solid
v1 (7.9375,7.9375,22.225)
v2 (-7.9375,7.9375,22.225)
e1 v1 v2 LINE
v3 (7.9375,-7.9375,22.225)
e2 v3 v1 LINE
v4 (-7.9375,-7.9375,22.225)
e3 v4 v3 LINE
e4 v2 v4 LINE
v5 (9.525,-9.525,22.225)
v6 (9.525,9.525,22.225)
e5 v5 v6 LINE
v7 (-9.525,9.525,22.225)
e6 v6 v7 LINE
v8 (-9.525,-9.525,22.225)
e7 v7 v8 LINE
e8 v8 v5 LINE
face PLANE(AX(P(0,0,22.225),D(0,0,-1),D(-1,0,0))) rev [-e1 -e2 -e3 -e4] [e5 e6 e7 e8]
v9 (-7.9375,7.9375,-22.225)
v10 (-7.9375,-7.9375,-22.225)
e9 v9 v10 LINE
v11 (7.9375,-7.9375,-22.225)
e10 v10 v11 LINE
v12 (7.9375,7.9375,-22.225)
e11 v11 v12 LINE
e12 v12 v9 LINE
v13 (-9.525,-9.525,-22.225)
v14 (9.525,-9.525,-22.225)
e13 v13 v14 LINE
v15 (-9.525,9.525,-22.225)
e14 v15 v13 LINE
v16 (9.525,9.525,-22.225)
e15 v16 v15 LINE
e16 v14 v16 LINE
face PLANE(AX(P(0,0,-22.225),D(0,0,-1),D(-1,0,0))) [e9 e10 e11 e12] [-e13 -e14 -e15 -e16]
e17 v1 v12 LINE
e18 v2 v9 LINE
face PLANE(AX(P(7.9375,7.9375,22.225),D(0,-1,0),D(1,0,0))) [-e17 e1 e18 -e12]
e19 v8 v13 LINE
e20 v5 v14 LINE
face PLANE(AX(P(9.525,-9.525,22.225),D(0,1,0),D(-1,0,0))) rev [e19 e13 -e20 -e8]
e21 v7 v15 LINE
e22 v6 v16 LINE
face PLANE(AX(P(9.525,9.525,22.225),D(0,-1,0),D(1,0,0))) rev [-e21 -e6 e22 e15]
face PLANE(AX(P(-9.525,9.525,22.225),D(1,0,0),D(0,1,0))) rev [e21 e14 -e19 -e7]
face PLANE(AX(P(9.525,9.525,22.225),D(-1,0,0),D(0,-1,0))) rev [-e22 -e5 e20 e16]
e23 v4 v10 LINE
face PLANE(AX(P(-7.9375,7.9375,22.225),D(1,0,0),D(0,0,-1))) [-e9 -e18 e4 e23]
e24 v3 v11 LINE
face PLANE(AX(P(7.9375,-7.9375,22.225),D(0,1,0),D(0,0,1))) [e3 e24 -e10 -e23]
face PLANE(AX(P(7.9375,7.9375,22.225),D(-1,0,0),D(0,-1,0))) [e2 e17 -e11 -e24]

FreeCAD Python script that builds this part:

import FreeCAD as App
import Part
import Sketcher
Q = App.Units.Quantity

doc = App.newDocument("Part")
body = doc.addObject("PartDesign::Body", "Body")

sketch1 = doc.addObject("Sketcher::SketchObject", "Sketch")
body.addObject(sketch1)
sketch1.AttachmentSupport = (doc.XY_Plane, [""])
sketch1.MapMode = "FlatFace"
sketch1.addGeometry(Part.LineSegment(App.Vector(-9.525, 9.525, 0), App.Vector(-9.525, -9.525, 0)), False)
sketch1.addGeometry(Part.LineSegment(App.Vector(-9.525, -9.525, 0), App.Vector(9.525, -9.525, 0)), False)
sketch1.addGeometry(Part.LineSegment(App.Vector(9.525, -9.525, 0), App.Vector(9.525, 9.525, 0)), False)
sketch1.addGeometry(Part.LineSegment(App.Vector(9.525, 9.525, 0), App.Vector(-9.525, 9.525, 0)), False)
sketch1.addGeometry(Part.LineSegment(App.Vector(7.9375, -7.9375, 0), App.Vector(-7.9375, -7.9375, 0)), False)
sketch1.addGeometry(Part.LineSegment(App.Vector(-7.9375, -7.9375, 0), App.Vector(-7.9375, 7.9375, 0)), False)
sketch1.addGeometry(Part.LineSegment(App.Vector(-7.9375, 7.9375, 0), App.Vector(7.9375, 7.9375, 0)), False)
sketch1.addGeometry(Part.LineSegment(App.Vector(7.9375, 7.9375, 0), App.Vector(7.9375, -7.9375, 0)), False)
sketch1.addConstraint(Sketcher.Constraint("Coincident", 0, 2, 1, 1))
sketch1.addConstraint(Sketcher.Constraint("Coincident", 1, 2, 2, 1))
sketch1.addConstraint(Sketcher.Constraint("Coincident", 2, 2, 3, 1))
sketch1.addConstraint(Sketcher.Constraint("Coincident", 3, 2, 0, 1))
sketch1.addConstraint(Sketcher.Constraint("Coincident", 4, 2, 5, 1))
sketch1.addConstraint(Sketcher.Constraint("Coincident", 5, 2, 6, 1))
sketch1.addConstraint(Sketcher.Constraint("Coincident", 6, 2, 7, 1))
sketch1.addConstraint(Sketcher.Constraint("Coincident", 7, 2, 4, 1))
sketch1.addConstraint(Sketcher.Constraint("Vertical", 0))
sketch1.addConstraint(Sketcher.Constraint("Horizontal", 1))
sketch1.addConstraint(Sketcher.Constraint("Vertical", 2))
sketch1.addConstraint(Sketcher.Constraint("Horizontal", 3))
sketch1.addConstraint(Sketcher.Constraint("Horizontal", 4))
sketch1.addConstraint(Sketcher.Constraint("Vertical", 5))
sketch1.addConstraint(Sketcher.Constraint("Horizontal", 6))
sketch1.addConstraint(Sketcher.Constraint("Vertical", 7))
sketch1.addConstraint(Sketcher.Constraint("Symmetric", 0, 2, 2, 2, -1, 1))
sketch1.addConstraint(Sketcher.Constraint("Symmetric", 4, 2, 6, 2, -1, 1))
sketch1.addConstraint(Sketcher.Constraint("Equal", 3, 0))
sketch1.addConstraint(Sketcher.Constraint("Equal", 6, 5))
sketch1.addConstraint(Sketcher.Constraint("DistanceX", 1, 1, 1, 2, Q("0.75 in")))
sketch1.addConstraint(Sketcher.Constraint("DistanceX", 4, 2, 4, 1, Q("0.625 in")))
pad1 = doc.addObject("PartDesign::Pad", "Pad")
body.addObject(pad1)
pad1.Profile = sketch1
pad1.Length = Q("1.75 in")
pad1.Midplane = True

doc.recompute()
